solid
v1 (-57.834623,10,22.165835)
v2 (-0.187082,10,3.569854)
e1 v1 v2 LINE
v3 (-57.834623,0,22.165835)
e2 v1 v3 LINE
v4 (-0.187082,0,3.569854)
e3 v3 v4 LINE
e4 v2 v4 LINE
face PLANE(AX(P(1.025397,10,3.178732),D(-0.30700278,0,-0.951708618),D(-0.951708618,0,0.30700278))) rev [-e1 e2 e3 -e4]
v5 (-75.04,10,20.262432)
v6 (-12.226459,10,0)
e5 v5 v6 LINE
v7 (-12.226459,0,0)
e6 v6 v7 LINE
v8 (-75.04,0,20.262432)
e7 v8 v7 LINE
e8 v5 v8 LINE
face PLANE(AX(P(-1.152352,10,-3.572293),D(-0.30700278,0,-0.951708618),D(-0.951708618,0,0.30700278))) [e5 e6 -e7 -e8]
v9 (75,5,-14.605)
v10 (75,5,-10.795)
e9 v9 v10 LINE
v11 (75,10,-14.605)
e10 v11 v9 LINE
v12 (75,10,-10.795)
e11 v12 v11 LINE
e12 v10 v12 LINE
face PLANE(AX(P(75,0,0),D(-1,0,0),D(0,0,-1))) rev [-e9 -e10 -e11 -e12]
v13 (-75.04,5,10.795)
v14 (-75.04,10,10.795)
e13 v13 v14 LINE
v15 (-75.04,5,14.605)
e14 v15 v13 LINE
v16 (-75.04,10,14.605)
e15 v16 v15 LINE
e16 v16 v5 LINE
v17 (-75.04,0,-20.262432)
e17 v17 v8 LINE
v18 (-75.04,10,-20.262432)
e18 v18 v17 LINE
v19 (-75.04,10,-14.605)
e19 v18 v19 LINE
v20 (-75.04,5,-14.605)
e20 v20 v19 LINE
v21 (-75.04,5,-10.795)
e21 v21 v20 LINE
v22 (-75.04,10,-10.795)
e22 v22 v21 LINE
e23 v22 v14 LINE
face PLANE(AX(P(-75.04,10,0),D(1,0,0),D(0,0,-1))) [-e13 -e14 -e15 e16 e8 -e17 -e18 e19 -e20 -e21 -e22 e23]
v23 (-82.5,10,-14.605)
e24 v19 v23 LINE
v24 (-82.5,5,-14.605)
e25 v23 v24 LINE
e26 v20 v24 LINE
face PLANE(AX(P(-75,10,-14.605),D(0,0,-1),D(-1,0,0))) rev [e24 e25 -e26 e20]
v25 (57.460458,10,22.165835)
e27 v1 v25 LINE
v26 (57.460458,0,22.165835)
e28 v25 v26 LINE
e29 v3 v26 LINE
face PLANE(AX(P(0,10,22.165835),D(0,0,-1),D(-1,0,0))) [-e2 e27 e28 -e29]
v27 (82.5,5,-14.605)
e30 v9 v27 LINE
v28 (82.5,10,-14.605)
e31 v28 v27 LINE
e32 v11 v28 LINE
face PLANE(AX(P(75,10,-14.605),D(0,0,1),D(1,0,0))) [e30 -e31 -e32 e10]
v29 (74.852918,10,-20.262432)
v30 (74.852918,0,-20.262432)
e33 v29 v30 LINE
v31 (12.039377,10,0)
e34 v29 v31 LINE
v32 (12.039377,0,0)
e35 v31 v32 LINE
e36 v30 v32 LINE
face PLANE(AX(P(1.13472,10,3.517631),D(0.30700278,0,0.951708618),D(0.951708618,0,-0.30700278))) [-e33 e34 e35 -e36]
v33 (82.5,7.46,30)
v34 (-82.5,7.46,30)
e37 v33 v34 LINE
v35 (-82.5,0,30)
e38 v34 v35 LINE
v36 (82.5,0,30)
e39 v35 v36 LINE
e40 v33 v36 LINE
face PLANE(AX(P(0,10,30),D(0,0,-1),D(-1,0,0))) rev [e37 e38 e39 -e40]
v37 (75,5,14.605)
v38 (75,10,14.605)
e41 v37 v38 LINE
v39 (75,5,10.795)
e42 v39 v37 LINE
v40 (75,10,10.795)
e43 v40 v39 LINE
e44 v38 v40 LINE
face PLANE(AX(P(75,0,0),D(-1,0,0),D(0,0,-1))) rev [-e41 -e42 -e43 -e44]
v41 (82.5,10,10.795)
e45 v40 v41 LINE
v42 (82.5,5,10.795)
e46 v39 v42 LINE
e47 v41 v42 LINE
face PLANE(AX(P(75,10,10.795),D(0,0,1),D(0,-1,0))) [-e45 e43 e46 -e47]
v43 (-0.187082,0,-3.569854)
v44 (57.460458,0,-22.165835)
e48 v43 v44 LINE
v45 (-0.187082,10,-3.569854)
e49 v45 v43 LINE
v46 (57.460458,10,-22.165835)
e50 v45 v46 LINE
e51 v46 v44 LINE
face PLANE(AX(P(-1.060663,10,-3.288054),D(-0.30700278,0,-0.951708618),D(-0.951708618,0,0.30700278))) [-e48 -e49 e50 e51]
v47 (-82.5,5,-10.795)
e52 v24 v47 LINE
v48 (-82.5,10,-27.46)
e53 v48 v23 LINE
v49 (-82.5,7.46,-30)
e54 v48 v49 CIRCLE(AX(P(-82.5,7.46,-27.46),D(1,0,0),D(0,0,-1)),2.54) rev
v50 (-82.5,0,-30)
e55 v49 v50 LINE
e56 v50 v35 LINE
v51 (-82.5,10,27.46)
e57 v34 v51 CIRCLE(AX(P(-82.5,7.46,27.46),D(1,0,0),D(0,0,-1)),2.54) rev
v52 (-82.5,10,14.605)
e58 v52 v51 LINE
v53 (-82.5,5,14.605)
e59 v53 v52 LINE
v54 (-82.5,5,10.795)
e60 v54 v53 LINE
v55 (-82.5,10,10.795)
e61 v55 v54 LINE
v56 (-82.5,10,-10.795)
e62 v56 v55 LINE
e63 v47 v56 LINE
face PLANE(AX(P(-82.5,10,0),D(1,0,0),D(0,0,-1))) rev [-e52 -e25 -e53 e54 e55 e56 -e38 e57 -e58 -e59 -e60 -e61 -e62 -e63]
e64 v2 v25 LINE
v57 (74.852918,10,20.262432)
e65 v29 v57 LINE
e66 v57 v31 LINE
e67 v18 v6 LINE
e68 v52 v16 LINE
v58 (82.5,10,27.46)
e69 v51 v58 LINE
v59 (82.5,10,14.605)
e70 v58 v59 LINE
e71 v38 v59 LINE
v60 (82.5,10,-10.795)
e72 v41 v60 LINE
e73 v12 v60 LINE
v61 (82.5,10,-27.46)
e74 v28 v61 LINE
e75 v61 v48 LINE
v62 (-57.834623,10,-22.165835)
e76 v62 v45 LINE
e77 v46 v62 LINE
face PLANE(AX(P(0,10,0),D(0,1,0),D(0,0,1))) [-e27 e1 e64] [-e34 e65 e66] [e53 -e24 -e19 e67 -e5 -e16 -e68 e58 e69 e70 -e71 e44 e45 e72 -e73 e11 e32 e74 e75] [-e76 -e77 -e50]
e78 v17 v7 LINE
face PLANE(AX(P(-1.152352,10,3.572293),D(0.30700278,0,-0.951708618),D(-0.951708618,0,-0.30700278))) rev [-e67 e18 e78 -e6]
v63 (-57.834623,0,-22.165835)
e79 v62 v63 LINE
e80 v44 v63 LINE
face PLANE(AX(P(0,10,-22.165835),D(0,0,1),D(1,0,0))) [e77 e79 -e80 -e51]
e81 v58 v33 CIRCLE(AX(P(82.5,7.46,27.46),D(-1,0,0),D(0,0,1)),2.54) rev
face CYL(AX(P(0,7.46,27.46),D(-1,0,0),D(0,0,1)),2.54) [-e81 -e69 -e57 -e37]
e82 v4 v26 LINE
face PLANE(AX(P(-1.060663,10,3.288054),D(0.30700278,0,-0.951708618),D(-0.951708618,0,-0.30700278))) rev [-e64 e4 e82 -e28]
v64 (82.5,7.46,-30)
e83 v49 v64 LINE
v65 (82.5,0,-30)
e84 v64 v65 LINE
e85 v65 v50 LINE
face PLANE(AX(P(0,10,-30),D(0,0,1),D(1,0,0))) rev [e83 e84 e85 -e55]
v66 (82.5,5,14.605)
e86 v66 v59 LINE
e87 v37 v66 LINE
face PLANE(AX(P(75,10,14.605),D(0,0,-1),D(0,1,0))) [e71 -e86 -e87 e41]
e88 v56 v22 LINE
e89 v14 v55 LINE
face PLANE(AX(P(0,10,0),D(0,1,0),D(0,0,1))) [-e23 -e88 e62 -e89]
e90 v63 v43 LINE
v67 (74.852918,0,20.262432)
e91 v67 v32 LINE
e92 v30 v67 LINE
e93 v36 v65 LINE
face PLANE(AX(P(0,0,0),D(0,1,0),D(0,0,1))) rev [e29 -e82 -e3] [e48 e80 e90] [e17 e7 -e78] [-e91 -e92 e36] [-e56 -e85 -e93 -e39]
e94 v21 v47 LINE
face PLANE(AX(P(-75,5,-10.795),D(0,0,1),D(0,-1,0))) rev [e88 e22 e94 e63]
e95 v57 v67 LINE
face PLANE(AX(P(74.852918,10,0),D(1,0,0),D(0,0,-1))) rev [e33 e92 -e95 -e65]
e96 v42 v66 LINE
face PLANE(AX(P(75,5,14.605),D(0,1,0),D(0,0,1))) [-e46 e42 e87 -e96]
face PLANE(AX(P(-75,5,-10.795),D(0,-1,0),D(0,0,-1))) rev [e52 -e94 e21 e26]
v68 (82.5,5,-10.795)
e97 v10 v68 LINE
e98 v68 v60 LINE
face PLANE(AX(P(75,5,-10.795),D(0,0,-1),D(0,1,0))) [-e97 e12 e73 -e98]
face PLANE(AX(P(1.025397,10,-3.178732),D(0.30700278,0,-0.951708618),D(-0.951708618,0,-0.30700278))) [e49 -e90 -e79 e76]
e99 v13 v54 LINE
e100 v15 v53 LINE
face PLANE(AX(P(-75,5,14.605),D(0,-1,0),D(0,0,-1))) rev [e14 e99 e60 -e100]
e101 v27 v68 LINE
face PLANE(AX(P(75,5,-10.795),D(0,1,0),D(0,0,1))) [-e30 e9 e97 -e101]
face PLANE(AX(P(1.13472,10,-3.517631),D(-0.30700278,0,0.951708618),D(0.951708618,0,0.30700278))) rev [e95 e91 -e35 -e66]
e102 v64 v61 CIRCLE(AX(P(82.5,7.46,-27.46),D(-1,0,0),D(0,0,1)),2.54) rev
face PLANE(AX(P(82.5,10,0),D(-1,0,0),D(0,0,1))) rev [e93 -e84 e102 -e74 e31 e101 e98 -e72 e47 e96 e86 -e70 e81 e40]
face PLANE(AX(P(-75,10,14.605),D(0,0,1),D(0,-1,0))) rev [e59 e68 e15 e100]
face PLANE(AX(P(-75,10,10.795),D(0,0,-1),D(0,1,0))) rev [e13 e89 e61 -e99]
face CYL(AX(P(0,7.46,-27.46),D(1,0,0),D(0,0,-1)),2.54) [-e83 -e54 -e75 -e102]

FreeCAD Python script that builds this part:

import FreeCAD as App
import Part
import Sketcher
from FreeCAD import Vector
Q = App.Units.Quantity


def edges_at(feature, points):
    """Names of the edges that pass closest to the given points."""
    edges = feature.Shape.Edges
    near = lambda p: min(range(len(edges)), key=lambda i: edges[i].distToShape(Part.Vertex(*p))[0])
    return sorted({f"Edge{near(p) + 1}" for p in points})


def add_polygon(sketch, points):
    """Adds a closed chain of lines whose ends are joined by coincident constraints."""
    first, n = sketch.GeometryCount, len(points)
    for a, b in zip(points, points[1:] + points[:1]):
        sketch.addGeometry(Part.LineSegment(App.Vector(*a, 0), App.Vector(*b, 0)), False)
    for i in range(n):
        sketch.addConstraint(Sketcher.Constraint("Coincident", first + i, 2, first + (i + 1) % n, 1))

doc = App.newDocument("Part")
body = doc.addObject("PartDesign::Body", "Body")

sketch1 = body.newObject("Sketcher::SketchObject", "Sketch")
sketch1.AttachmentSupport = (doc.getObject("XZ_Plane"), [""])
sketch1.MapMode = "FlatFace"
add_polygon(sketch1, [(-82, -30), (-82, 30), (82, 30), (82, -30)])
add_polygon(sketch1, [(57, 22), (-58, 22), (0, 4)])
add_polygon(sketch1, [(-75, 20), (-75, -20), (-12, 0)])
add_polygon(sketch1, [(-58, -22), (57, -22), (0, -4)])
add_polygon(sketch1, [(12, 0), (75, -20), (75, 20)])
sketch1.addConstraint(Sketcher.Constraint("Vertical", 0))
sketch1.addConstraint(Sketcher.Constraint("Horizontal", 1))
sketch1.addConstraint(Sketcher.Constraint("Vertical", 2))
sketch1.addConstraint(Sketcher.Constraint("Horizontal", 3))
sketch1.addConstraint(Sketcher.Constraint("Horizontal", 4))
sketch1.addConstraint(Sketcher.Constraint("Vertical", 7))
sketch1.addConstraint(Sketcher.Constraint("Horizontal", 10))
sketch1.addConstraint(Sketcher.Constraint("Vertical", 14))
sketch1.addConstraint(Sketcher.Constraint("Symmetric", 0, 2, 2, 2, -1, 1))
sketch1.addConstraint(Sketcher.Constraint("Symmetric", 6, 2, 10, 2, -1))
sketch1.addConstraint(Sketcher.Constraint("Symmetric", 5, 2, 11, 2, -1))
sketch1.addConstraint(Sketcher.Constraint("PointOnObject", 8, 2, -1))
sketch1.addConstraint(Sketcher.Constraint("PointOnObject", 15, 2, -1))
sketch1.addConstraint(Sketcher.Constraint("Parallel", 6, 8))
sketch1.addConstraint(Sketcher.Constraint("Parallel", 5, 9))
sketch1.addConstraint(Sketcher.Constraint("Parallel", 9, 11))
sketch1.addConstraint(Sketcher.Constraint("Parallel", 8, 12))
sketch1.addConstraint(Sketcher.Constraint("Parallel", 11, 13))
sketch1.addConstraint(Sketcher.Constraint("Parallel", 12, 15))
sketch1.addConstraint(Sketcher.Constraint("Horizontal", 7, 2, 13, 2))
sketch1.addConstraint(Sketcher.Constraint("DistanceX", 1, 1, 1, 2, Q("165 mm")))
sketch1.addConstraint(Sketcher.Constraint("DistanceY", 0, 1, 0, 2, Q("60 mm")))
sketch1.addConstraint(Sketcher.Constraint("DistanceX", 7, 2, -1, 1, Q("75.04 mm")))
sketch1.addConstraint(Sketcher.Constraint("DistanceX", 11, 2, 13, 2, Q("75.04 mm")))
sketch1.addConstraint(Sketcher.Constraint("DistanceX", 4, 2, 4, 1, Q("115.295081 mm")))
sketch1.addConstraint(Sketcher.Constraint("Distance", 5, Q("60.572679 mm")))
sketch1.addConstraint(Sketcher.Constraint("Distance", 8, Q("66.000811 mm")))
sketch1.addConstraint(Sketcher.Constraint("DistanceX", -1, 1, 6, 2, Q("57.460458 mm")))
sketch1.addConstraint(Sketcher.Constraint("DistanceY", 10, 2, 6, 2, Q("44.33167 mm")))
pad1 = body.newObject("PartDesign::Pad", "Pad")
pad1.Profile = sketch1
pad1.Length = 10
pad1.Reversed = True

sketch2 = body.newObject("Sketcher::SketchObject", "Sketch001")
sketch2.AttachmentSupport = (doc.getObject("YZ_Plane"), [""])
sketch2.MapMode = "FlatFace"
sketch2.AttachmentOffset = App.Placement(Vector(0, 0, -82.5), App.Rotation())
add_polygon(sketch2, [(10, -14.6), (5, -14.6), (5, -10.8), (10, -10.8)])
add_polygon(sketch2, [(10, 10.8), (5, 10.8), (5, 14.6), (10, 14.6)])
sketch2.addConstraint(Sketcher.Constraint("Horizontal", 0))
sketch2.addConstraint(Sketcher.Constraint("Vertical", 1))
sketch2.addConstraint(Sketcher.Constraint("Horizontal", 2))
sketch2.addConstraint(Sketcher.Constraint("Vertical", 3))
sketch2.addConstraint(Sketcher.Constraint("Horizontal", 4))
sketch2.addConstraint(Sketcher.Constraint("Vertical", 5))
sketch2.addConstraint(Sketcher.Constraint("Horizontal", 6))
sketch2.addConstraint(Sketcher.Constraint("Vertical", 7))
sketch2.addConstraint(Sketcher.Constraint("Symmetric", 1, 2, 4, 2, -1))
sketch2.addConstraint(Sketcher.Constraint("Symmetric", 3, 2, 6, 2, -1))
sketch2.addConstraint(Sketcher.Constraint("DistanceX", 0, 2, 0, 1, Q("5 mm")))
sketch2.addConstraint(Sketcher.Constraint("DistanceX", -1, 1, 0, 2, Q("5 mm")))
sketch2.addConstraint(Sketcher.Constraint("DistanceY", 1, 1, 1, 2, Q("3.81 mm")))
sketch2.addConstraint(Sketcher.Constraint("DistanceY", 0, 2, 4, 2, Q("25.4 mm")))
pocket1 = body.newObject("PartDesign::Pocket", "Pocket")
pocket1.Profile = sketch2
pocket1.Length = 7.5
pocket1.Reversed = True
doc.recompute()

mirrored = body.newObject("PartDesign::Mirrored", "Mirrored")
mirrored.Originals = [pocket1]
mirrored.MirrorPlane = (doc.getObject("YZ_Plane"), [""])
body.Tip = mirrored
doc.recompute()

fillet = body.newObject("PartDesign::Fillet", "Fillet")
fillet.Base = (mirrored, edges_at(mirrored, [(0, 10, -30), (0, 10, 30)]))
fillet.Radius = 2.54

doc.recompute()
